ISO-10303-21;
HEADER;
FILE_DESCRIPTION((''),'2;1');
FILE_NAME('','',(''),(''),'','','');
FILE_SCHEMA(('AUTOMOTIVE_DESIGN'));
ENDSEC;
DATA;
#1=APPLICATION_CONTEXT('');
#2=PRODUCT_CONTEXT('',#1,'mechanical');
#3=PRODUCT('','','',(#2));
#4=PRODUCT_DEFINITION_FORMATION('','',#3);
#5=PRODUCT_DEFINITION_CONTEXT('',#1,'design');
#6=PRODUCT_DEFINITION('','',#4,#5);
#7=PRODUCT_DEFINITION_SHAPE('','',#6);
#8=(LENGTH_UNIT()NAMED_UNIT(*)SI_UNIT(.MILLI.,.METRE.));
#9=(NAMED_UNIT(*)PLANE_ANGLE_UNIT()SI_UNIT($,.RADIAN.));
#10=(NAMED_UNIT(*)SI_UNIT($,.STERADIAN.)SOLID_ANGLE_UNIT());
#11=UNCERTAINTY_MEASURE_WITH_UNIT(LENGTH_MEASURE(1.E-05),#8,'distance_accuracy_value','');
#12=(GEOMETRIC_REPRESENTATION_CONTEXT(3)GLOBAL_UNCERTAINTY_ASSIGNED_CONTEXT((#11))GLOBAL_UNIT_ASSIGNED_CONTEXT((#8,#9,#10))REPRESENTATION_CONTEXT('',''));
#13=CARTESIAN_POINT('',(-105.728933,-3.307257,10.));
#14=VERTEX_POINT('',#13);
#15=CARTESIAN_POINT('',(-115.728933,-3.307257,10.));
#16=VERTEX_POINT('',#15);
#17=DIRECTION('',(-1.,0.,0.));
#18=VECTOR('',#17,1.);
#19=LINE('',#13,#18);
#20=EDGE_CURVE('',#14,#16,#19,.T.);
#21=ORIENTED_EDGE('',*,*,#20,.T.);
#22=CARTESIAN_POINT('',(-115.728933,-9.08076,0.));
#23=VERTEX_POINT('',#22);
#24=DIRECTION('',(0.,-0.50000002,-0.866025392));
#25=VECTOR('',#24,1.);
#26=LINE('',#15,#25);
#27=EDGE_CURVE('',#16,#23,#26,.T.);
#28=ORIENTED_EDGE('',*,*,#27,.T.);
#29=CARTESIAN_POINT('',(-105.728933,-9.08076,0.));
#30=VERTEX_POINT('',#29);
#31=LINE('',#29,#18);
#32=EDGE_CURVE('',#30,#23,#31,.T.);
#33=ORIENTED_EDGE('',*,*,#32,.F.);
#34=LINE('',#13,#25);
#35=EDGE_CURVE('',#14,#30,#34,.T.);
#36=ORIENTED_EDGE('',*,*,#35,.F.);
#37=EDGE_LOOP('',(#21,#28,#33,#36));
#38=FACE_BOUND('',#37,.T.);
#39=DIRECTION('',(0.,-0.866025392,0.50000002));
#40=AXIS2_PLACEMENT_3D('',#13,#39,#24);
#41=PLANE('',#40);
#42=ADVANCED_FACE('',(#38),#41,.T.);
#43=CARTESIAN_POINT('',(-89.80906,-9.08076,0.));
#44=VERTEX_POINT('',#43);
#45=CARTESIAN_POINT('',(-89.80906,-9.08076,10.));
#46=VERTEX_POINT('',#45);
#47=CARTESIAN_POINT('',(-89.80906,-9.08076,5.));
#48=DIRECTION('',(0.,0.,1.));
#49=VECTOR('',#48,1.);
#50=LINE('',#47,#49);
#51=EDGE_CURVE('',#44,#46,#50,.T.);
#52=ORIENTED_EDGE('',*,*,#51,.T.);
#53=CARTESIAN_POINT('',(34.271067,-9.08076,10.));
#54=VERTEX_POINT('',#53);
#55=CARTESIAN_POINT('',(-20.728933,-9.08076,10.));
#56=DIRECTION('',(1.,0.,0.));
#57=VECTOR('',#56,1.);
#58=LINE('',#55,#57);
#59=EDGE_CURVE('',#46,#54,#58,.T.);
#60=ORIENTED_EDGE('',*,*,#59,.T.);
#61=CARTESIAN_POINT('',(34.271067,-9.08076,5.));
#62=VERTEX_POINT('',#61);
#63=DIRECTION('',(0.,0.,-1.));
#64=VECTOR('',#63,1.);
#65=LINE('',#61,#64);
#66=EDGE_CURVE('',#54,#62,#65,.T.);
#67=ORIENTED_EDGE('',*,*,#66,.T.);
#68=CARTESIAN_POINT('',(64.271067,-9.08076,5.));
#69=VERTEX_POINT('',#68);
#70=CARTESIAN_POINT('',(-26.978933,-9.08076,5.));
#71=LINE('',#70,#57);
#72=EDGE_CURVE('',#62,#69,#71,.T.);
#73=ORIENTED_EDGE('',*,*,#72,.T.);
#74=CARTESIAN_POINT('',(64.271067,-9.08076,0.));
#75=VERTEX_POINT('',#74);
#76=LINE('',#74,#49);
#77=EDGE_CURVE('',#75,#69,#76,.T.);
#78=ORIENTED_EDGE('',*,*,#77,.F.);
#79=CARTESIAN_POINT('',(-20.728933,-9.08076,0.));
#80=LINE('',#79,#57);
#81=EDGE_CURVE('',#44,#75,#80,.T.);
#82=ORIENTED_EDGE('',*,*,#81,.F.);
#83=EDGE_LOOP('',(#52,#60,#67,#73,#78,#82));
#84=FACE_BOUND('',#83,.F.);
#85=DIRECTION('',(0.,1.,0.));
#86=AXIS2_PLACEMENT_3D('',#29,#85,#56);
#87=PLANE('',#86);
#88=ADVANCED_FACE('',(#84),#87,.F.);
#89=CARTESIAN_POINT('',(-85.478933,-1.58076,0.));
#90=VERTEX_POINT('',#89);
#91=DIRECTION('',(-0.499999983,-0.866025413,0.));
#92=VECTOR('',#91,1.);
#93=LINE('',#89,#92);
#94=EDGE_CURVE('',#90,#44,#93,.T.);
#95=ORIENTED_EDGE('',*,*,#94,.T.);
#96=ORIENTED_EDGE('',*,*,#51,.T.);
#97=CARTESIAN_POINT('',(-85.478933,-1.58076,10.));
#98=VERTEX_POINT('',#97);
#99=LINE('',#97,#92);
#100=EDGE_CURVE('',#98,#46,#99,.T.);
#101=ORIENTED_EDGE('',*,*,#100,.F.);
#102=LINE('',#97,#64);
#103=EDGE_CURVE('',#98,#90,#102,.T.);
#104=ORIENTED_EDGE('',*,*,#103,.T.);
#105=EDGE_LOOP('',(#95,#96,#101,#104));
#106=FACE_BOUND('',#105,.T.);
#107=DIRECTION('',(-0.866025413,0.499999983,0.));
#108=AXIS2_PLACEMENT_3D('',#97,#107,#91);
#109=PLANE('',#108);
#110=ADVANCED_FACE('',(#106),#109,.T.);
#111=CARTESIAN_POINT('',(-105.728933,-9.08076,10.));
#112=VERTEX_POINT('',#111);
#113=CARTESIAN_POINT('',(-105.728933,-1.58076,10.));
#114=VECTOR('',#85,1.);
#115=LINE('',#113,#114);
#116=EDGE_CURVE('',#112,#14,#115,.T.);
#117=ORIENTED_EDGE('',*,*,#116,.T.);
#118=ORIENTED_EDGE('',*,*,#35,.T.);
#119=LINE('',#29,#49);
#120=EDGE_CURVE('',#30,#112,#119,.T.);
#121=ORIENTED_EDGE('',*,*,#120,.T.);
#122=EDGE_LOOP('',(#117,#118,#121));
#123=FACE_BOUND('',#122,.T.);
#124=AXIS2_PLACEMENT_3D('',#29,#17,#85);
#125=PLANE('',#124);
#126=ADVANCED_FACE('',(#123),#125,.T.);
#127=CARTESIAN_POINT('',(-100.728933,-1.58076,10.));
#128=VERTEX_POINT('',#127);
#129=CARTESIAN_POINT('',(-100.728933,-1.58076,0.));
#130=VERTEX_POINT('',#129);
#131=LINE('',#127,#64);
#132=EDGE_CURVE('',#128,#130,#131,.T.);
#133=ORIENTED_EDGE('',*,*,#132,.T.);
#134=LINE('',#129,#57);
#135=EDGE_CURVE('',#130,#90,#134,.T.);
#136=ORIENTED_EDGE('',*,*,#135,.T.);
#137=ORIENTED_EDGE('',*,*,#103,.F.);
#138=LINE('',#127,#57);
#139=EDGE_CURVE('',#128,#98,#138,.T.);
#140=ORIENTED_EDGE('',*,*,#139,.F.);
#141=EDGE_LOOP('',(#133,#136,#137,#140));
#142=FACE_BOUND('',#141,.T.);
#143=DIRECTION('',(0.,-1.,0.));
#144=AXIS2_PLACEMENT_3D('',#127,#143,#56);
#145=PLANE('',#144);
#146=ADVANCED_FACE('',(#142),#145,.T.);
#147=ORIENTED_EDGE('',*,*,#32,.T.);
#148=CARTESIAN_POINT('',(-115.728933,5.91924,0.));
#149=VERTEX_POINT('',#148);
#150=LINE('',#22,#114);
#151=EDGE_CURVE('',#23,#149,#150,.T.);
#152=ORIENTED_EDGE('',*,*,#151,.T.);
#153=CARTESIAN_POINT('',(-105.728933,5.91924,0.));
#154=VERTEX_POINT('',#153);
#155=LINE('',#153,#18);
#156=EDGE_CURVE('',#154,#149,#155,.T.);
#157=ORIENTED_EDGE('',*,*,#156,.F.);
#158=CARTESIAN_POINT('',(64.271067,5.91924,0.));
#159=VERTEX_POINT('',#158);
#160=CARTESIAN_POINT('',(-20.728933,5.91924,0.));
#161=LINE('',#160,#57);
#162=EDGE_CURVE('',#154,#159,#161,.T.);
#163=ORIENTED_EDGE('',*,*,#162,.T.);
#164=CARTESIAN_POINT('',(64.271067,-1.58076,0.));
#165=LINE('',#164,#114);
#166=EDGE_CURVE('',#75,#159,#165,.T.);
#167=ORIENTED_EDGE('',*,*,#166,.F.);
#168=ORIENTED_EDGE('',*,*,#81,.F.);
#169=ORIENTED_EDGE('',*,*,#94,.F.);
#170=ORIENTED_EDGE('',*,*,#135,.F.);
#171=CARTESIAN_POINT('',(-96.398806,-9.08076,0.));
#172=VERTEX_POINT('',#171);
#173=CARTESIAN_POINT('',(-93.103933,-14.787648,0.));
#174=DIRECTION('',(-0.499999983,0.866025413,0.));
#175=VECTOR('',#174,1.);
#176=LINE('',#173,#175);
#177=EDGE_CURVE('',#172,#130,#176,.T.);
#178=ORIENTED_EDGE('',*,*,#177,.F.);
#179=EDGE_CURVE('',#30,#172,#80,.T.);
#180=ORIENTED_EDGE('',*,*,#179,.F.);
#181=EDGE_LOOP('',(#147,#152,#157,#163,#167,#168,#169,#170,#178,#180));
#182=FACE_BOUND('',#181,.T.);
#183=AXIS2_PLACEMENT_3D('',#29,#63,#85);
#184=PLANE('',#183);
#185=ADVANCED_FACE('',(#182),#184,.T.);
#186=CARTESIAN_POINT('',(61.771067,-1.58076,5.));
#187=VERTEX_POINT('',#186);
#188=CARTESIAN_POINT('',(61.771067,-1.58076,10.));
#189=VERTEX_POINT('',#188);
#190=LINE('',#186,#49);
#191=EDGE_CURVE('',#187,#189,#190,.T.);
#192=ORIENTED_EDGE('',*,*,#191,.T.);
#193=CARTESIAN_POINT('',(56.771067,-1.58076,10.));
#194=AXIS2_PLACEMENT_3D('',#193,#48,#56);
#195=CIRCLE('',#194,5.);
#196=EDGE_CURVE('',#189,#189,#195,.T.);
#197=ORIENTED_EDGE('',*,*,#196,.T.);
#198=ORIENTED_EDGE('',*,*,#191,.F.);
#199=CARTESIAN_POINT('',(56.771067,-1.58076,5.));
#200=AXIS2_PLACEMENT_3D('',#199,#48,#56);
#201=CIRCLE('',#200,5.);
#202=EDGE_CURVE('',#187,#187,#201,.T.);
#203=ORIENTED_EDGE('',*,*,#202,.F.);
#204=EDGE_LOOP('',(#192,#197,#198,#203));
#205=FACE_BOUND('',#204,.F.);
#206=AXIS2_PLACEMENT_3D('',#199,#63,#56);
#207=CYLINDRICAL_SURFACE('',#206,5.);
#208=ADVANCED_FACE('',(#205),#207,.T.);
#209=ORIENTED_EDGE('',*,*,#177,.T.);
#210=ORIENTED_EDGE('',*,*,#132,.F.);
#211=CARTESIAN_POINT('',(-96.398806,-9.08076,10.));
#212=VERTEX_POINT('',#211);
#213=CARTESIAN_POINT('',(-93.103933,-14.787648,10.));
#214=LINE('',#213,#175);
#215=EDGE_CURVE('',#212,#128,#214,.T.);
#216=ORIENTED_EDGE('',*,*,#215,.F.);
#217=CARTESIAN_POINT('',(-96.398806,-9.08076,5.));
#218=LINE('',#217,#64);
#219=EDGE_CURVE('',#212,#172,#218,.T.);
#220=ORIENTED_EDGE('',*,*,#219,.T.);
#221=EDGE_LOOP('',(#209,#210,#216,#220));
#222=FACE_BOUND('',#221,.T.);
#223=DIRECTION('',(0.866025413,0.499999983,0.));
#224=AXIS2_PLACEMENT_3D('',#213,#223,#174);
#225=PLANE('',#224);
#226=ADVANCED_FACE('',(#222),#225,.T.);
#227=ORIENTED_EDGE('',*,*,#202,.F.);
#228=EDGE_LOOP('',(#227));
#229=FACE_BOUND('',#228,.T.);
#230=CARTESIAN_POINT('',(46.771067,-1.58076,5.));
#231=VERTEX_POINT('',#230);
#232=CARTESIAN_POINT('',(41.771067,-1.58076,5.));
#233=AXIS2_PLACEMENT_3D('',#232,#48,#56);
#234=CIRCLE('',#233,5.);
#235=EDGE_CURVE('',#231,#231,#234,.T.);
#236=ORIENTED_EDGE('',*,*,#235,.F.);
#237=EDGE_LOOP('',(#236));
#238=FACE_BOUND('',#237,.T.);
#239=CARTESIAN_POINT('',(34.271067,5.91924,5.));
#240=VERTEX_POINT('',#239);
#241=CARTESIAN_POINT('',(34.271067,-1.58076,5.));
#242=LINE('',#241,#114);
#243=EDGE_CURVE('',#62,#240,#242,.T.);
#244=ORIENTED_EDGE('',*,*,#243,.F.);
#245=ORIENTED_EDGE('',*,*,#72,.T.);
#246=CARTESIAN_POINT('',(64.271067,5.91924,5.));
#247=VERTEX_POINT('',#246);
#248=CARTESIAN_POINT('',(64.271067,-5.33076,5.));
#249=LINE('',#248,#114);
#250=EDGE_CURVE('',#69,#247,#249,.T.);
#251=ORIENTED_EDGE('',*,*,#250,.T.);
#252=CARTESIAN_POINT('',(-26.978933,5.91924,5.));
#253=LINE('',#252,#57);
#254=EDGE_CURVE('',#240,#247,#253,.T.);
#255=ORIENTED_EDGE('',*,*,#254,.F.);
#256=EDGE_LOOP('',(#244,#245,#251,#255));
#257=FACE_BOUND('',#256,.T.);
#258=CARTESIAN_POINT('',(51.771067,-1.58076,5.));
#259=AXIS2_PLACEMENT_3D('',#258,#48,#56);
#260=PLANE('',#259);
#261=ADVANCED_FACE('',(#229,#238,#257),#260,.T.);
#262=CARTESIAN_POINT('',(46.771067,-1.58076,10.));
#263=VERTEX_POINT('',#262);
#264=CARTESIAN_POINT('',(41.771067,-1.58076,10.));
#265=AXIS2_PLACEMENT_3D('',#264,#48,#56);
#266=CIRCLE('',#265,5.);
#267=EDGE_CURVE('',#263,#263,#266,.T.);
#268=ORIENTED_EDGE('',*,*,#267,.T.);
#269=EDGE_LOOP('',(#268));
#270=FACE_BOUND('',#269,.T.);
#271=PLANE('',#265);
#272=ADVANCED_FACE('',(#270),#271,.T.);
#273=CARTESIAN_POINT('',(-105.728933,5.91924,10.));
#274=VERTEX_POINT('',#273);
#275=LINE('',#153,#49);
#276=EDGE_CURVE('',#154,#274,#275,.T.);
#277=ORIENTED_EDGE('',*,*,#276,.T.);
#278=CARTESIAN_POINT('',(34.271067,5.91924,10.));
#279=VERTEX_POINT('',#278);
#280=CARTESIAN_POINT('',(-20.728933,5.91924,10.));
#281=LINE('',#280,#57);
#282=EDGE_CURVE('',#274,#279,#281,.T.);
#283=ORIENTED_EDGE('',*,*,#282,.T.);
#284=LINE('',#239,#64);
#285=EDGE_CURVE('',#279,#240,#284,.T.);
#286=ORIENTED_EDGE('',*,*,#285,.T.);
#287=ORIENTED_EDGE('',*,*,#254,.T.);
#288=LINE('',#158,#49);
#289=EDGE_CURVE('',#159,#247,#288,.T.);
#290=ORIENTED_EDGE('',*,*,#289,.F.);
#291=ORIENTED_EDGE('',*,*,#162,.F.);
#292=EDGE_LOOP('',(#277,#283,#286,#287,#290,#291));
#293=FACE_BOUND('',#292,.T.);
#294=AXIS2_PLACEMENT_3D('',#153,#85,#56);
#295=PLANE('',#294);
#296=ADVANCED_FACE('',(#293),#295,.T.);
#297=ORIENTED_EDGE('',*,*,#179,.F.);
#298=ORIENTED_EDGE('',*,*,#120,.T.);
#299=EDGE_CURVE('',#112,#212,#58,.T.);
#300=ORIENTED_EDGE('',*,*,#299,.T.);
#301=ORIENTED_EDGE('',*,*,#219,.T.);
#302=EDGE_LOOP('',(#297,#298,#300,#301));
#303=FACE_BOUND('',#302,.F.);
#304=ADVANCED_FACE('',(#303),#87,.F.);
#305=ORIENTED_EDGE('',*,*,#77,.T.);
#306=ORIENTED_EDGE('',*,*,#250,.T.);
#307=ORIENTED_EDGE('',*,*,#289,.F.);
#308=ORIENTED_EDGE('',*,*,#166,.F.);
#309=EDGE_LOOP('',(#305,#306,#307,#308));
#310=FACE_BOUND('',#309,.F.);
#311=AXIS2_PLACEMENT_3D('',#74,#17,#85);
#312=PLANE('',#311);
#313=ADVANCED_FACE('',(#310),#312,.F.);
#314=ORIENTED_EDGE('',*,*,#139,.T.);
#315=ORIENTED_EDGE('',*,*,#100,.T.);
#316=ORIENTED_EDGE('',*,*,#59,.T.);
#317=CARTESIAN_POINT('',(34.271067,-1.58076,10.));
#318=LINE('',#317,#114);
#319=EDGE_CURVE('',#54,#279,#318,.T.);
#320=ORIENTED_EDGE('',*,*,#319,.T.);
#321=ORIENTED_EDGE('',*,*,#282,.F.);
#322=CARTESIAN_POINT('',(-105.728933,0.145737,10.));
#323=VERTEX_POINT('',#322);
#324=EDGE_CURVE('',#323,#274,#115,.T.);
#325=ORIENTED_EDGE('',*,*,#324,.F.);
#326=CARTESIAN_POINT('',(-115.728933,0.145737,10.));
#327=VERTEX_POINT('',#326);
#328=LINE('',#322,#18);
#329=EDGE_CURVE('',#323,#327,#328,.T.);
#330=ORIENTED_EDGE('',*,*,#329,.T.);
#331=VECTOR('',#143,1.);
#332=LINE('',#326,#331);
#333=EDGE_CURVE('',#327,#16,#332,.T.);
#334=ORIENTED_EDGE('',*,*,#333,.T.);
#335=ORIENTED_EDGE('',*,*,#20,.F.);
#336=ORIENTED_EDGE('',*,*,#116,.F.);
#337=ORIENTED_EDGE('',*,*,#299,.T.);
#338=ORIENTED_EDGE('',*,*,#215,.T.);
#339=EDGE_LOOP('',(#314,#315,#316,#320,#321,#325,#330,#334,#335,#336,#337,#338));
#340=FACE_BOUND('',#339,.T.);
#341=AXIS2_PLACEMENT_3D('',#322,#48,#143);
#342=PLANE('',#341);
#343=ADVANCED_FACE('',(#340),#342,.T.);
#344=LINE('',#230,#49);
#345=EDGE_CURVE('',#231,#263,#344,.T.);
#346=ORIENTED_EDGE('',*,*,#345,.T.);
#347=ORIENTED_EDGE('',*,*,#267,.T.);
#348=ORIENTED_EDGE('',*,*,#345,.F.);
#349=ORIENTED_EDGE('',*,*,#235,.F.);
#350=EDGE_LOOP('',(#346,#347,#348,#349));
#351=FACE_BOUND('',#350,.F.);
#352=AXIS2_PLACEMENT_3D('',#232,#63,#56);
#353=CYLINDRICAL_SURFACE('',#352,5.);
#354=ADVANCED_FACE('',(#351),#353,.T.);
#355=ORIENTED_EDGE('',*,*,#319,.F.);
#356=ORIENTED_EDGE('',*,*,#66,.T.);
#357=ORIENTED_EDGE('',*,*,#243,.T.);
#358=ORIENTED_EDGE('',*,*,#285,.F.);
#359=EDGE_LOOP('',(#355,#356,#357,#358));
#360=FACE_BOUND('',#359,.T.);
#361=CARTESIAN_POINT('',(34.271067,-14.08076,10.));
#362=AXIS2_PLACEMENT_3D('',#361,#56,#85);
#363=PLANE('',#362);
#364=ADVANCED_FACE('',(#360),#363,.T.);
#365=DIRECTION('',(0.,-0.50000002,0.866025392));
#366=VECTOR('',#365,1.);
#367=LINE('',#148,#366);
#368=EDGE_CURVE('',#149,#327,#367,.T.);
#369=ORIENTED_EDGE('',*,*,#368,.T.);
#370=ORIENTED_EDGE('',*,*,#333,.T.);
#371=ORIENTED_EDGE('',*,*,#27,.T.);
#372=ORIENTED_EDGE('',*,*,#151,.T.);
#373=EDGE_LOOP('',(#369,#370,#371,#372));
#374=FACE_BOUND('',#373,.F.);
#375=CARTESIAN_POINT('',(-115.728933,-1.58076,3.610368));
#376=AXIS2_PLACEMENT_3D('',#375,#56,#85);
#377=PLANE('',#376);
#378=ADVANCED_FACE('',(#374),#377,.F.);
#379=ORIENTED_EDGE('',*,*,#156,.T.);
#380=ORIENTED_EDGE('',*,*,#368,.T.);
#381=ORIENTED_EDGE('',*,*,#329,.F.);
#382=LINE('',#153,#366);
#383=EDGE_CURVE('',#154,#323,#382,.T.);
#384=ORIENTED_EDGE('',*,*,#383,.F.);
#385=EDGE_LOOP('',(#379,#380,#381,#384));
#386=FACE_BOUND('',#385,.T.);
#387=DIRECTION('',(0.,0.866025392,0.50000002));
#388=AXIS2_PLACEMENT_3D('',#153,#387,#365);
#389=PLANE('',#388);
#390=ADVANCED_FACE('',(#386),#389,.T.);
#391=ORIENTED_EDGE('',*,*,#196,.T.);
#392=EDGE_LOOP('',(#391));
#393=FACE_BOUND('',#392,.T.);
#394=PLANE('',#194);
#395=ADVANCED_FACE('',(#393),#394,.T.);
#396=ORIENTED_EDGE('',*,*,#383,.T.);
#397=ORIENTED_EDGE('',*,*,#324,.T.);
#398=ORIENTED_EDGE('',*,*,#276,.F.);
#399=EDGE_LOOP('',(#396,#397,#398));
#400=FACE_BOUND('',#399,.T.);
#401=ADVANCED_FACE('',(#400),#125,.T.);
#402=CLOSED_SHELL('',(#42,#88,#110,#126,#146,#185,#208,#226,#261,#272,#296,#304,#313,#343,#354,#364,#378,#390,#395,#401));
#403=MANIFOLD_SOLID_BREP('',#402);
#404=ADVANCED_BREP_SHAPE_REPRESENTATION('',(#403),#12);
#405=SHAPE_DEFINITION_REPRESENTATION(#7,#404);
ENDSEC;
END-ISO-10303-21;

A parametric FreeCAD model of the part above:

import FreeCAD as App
import Part
import Sketcher
Q = App.Units.Quantity

doc = App.newDocument("Part")
params = doc.addObject("Spreadsheet::Sheet", "Params")
for row, (alias, value) in enumerate([
    ("sketch1_width", "170 mm"),
    ("sketch1_height", "15 mm"),
    ("pad1_length", "10 mm"),
    ("sketch2_width", "35 mm"),
    ("sketch2_height", "25 mm"),
    ("pocket1_length", "5 mm"),
    ("sketch3_diameter", "10 mm"),
    ("pad2_length", "5 mm"),
    ("sketch4_width", "15 mm"),
    ("pad3_length", "10 mm"),
    ("sketch5_width", "15.25 mm"),
    ("pocket2_length", "10 mm"),
], start=1):
    params.set(f"A{row}", alias)
    params.set(f"B{row}", "=" + value)
    params.setAlias(f"B{row}", alias)

body = doc.addObject("PartDesign::Body", "Body")

sketch1 = doc.addObject("Sketcher::SketchObject", "Sketch")
body.addObject(sketch1)
sketch1.AttachmentSupport = (doc.XY_Plane, [""])
sketch1.MapMode = "FlatFace"
sketch1.addGeometry([
    Part.LineSegment(App.Vector(-106, 6, 0), App.Vector(-106, -9, 0)),
    Part.LineSegment(App.Vector(-106, -9, 0), App.Vector(64, -9, 0)),
    Part.LineSegment(App.Vector(64, -9, 0), App.Vector(64, 6, 0)),
    Part.LineSegment(App.Vector(64, 6, 0), App.Vector(-106, 6, 0)),
], False)
sketch1.addConstraint([
    Sketcher.Constraint("Coincident", 0, 2, 1, 1),
    Sketcher.Constraint("Coincident", 1, 2, 2, 1),
    Sketcher.Constraint("Coincident", 2, 2, 3, 1),
    Sketcher.Constraint("Coincident", 3, 2, 0, 1),
    Sketcher.Constraint("Vertical", 0),
    Sketcher.Constraint("Horizontal", 1),
    Sketcher.Constraint("Vertical", 2),
    Sketcher.Constraint("Horizontal", 3),
    Sketcher.Constraint("DistanceX", 1, 1, 1, 2, Q("170 mm")),
    Sketcher.Constraint("DistanceY", 0, 2, 0, 1, Q("15 mm")),
    Sketcher.Constraint("DistanceY", 0, 2, -1, 1, Q("9.08076 mm")),
    Sketcher.Constraint("DistanceX", 0, 2, -1, 1, Q("105.728933 mm")),
])
sketch1.setExpression("Constraints[8]", "Params.sketch1_width")
sketch1.setExpression("Constraints[9]", "Params.sketch1_height")
pad1 = doc.addObject("PartDesign::Pad", "Pad")
body.addObject(pad1)
pad1.Profile = sketch1
pad1.setExpression("Length", "Params.pad1_length")

sketch2 = doc.addObject("Sketcher::SketchObject", "Sketch001")
body.addObject(sketch2)
sketch2.AttachmentSupport = (doc.XY_Plane, [""])
sketch2.MapMode = "FlatFace"
sketch2.AttachmentOffset = App.Placement(App.Vector(0, 0, 10), App.Rotation())
sketch2.addGeometry([
    Part.LineSegment(App.Vector(34, 11, 0), App.Vector(34, -14, 0)),
    Part.LineSegment(App.Vector(34, -14, 0), App.Vector(69, -14, 0)),
    Part.LineSegment(App.Vector(69, -14, 0), App.Vector(69, 11, 0)),
    Part.LineSegment(App.Vector(69, 11, 0), App.Vector(34, 11, 0)),
], False)
sketch2.addConstraint([
    Sketcher.Constraint("Coincident", 0, 2, 1, 1),
    Sketcher.Constraint("Coincident", 1, 2, 2, 1),
    Sketcher.Constraint("Coincident", 2, 2, 3, 1),
    Sketcher.Constraint("Coincident", 3, 2, 0, 1),
    Sketcher.Constraint("Vertical", 0),
    Sketcher.Constraint("Horizontal", 1),
    Sketcher.Constraint("Vertical", 2),
    Sketcher.Constraint("Horizontal", 3),
    Sketcher.Constraint("DistanceX", 1, 1, 1, 2, Q("35 mm")),
    Sketcher.Constraint("DistanceY", 0, 2, 0, 1, Q("25 mm")),
    Sketcher.Constraint("DistanceY", 0, 2, -1, 1, Q("14.08076 mm")),
    Sketcher.Constraint("DistanceX", -1, 1, 0, 2, Q("34.271067 mm")),
])
sketch2.setExpression("Constraints[8]", "Params.sketch2_width")
sketch2.setExpression("Constraints[9]", "Params.sketch2_height")
pocket1 = doc.addObject("PartDesign::Pocket", "Pocket")
body.addObject(pocket1)
pocket1.Profile = sketch2
pocket1.setExpression("Length", "Params.pocket1_length")

sketch3 = doc.addObject("Sketcher::SketchObject", "Sketch002")
body.addObject(sketch3)
sketch3.AttachmentSupport = (doc.XY_Plane, [""])
sketch3.MapMode = "FlatFace"
sketch3.AttachmentOffset = App.Placement(App.Vector(0, 0, 5), App.Rotation())
sketch3.addGeometry([
    Part.Circle(App.Vector(57, -2, 0), App.Vector(0, 0, 1), 5),
    Part.Circle(App.Vector(42, -2, 0), App.Vector(0, 0, 1), 5),
], False)
sketch3.addConstraint([
    Sketcher.Constraint("Equal", 0, 1),
    Sketcher.Constraint("Horizontal", 0, 3, 1, 3),
    Sketcher.Constraint("Diameter", 0, Q("10 mm")),
    Sketcher.Constraint("DistanceX", 1, 3, 0, 3, Q("15 mm")),
    Sketcher.Constraint("DistanceY", 0, 3, -1, 1, Q("1.58076 mm")),
    Sketcher.Constraint("DistanceX", -1, 1, 0, 3, Q("56.771067 mm")),
])
sketch3.setExpression("Constraints[2]", "Params.sketch3_diameter")
pad2 = doc.addObject("PartDesign::Pad", "Pad001")
body.addObject(pad2)
pad2.Profile = sketch3
pad2.setExpression("Length", "Params.pad2_length")

sketch4 = doc.addObject("Sketcher::SketchObject", "Sketch003")
body.addObject(sketch4)
sketch4.AttachmentSupport = (doc.YZ_Plane, [""])
sketch4.MapMode = "FlatFace"
sketch4.AttachmentOffset = App.Placement(App.Vector(0, 0, -105.728933), App.Rotation())
sketch4.addGeometry([
    Part.LineSegment(App.Vector(0.1, 10, 0), App.Vector(5.9, 0, 0)),
    Part.LineSegment(App.Vector(5.9, 0, 0), App.Vector(-9.1, 0, 0)),
    Part.LineSegment(App.Vector(-9.1, 0, 0), App.Vector(-3.3, 10, 0)),
    Part.LineSegment(App.Vector(-3.3, 10, 0), App.Vector(0.1, 10, 0)),
], False)
sketch4.addConstraint([
    Sketcher.Constraint("Coincident", 0, 2, 1, 1),
    Sketcher.Constraint("Coincident", 1, 2, 2, 1),
    Sketcher.Constraint("Coincident", 2, 2, 3, 1),
    Sketcher.Constraint("Coincident", 3, 2, 0, 1),
    Sketcher.Constraint("Horizontal", 1),
    Sketcher.Constraint("Horizontal", 3),
    Sketcher.Constraint("PointOnObject", 0, 2, -1),
    Sketcher.Constraint("Equal", 0, 2),
    Sketcher.Constraint("DistanceX", 1, 2, 1, 1, Q("15 mm")),
    Sketcher.Constraint("Angle", 0, Q("-59.999999 deg")),
    Sketcher.Constraint("DistanceY", -1, 1, 2, 2, Q("10 mm")),
    Sketcher.Constraint("DistanceX", -1, 1, 0, 2, Q("5.91924 mm")),
])
sketch4.setExpression("Constraints[8]", "Params.sketch4_width")
pad3 = doc.addObject("PartDesign::Pad", "Pad002")
body.addObject(pad3)
pad3.Profile = sketch4
pad3.setExpression("Length", "Params.pad3_length")
pad3.Reversed = True

sketch5 = doc.addObject("Sketcher::SketchObject", "Sketch004")
body.addObject(sketch5)
sketch5.AttachmentSupport = (doc.XY_Plane, [""])
sketch5.MapMode = "FlatFace"
sketch5.AttachmentOffset = App.Placement(App.Vector(0, 0, 10), App.Rotation())
sketch5.addGeometry([
    Part.LineSegment(App.Vector(-101, -2, 0), App.Vector(-93, -15, 0)),
    Part.LineSegment(App.Vector(-93, -15, 0), App.Vector(-85, -2, 0)),
    Part.LineSegment(App.Vector(-85, -2, 0), App.Vector(-101, -2, 0)),
], False)
sketch5.addConstraint([
    Sketcher.Constraint("Coincident", 0, 2, 1, 1),
    Sketcher.Constraint("Coincident", 1, 2, 2, 1),
    Sketcher.Constraint("Coincident", 2, 2, 0, 1),
    Sketcher.Constraint("Horizontal", 2),
    Sketcher.Constraint("Equal", 0, 1),
    Sketcher.Constraint("Angle", 0, Q("-60.000001 deg")),
    Sketcher.Constraint("DistanceX", 2, 2, 2, 1, Q("15.25 mm")),
    Sketcher.Constraint("DistanceY", 0, 2, -1, 1, Q("14.787648 mm")),
    Sketcher.Constraint("DistanceX", 0, 2, -1, 1, Q("93.103933 mm")),
])
sketch5.setExpression("Constraints[6]", "Params.sketch5_width")
pocket2 = doc.addObject("PartDesign::Pocket", "Pocket001")
body.addObject(pocket2)
pocket2.Profile = sketch5
pocket2.setExpression("Length", "Params.pocket2_length")

doc.recompute()
